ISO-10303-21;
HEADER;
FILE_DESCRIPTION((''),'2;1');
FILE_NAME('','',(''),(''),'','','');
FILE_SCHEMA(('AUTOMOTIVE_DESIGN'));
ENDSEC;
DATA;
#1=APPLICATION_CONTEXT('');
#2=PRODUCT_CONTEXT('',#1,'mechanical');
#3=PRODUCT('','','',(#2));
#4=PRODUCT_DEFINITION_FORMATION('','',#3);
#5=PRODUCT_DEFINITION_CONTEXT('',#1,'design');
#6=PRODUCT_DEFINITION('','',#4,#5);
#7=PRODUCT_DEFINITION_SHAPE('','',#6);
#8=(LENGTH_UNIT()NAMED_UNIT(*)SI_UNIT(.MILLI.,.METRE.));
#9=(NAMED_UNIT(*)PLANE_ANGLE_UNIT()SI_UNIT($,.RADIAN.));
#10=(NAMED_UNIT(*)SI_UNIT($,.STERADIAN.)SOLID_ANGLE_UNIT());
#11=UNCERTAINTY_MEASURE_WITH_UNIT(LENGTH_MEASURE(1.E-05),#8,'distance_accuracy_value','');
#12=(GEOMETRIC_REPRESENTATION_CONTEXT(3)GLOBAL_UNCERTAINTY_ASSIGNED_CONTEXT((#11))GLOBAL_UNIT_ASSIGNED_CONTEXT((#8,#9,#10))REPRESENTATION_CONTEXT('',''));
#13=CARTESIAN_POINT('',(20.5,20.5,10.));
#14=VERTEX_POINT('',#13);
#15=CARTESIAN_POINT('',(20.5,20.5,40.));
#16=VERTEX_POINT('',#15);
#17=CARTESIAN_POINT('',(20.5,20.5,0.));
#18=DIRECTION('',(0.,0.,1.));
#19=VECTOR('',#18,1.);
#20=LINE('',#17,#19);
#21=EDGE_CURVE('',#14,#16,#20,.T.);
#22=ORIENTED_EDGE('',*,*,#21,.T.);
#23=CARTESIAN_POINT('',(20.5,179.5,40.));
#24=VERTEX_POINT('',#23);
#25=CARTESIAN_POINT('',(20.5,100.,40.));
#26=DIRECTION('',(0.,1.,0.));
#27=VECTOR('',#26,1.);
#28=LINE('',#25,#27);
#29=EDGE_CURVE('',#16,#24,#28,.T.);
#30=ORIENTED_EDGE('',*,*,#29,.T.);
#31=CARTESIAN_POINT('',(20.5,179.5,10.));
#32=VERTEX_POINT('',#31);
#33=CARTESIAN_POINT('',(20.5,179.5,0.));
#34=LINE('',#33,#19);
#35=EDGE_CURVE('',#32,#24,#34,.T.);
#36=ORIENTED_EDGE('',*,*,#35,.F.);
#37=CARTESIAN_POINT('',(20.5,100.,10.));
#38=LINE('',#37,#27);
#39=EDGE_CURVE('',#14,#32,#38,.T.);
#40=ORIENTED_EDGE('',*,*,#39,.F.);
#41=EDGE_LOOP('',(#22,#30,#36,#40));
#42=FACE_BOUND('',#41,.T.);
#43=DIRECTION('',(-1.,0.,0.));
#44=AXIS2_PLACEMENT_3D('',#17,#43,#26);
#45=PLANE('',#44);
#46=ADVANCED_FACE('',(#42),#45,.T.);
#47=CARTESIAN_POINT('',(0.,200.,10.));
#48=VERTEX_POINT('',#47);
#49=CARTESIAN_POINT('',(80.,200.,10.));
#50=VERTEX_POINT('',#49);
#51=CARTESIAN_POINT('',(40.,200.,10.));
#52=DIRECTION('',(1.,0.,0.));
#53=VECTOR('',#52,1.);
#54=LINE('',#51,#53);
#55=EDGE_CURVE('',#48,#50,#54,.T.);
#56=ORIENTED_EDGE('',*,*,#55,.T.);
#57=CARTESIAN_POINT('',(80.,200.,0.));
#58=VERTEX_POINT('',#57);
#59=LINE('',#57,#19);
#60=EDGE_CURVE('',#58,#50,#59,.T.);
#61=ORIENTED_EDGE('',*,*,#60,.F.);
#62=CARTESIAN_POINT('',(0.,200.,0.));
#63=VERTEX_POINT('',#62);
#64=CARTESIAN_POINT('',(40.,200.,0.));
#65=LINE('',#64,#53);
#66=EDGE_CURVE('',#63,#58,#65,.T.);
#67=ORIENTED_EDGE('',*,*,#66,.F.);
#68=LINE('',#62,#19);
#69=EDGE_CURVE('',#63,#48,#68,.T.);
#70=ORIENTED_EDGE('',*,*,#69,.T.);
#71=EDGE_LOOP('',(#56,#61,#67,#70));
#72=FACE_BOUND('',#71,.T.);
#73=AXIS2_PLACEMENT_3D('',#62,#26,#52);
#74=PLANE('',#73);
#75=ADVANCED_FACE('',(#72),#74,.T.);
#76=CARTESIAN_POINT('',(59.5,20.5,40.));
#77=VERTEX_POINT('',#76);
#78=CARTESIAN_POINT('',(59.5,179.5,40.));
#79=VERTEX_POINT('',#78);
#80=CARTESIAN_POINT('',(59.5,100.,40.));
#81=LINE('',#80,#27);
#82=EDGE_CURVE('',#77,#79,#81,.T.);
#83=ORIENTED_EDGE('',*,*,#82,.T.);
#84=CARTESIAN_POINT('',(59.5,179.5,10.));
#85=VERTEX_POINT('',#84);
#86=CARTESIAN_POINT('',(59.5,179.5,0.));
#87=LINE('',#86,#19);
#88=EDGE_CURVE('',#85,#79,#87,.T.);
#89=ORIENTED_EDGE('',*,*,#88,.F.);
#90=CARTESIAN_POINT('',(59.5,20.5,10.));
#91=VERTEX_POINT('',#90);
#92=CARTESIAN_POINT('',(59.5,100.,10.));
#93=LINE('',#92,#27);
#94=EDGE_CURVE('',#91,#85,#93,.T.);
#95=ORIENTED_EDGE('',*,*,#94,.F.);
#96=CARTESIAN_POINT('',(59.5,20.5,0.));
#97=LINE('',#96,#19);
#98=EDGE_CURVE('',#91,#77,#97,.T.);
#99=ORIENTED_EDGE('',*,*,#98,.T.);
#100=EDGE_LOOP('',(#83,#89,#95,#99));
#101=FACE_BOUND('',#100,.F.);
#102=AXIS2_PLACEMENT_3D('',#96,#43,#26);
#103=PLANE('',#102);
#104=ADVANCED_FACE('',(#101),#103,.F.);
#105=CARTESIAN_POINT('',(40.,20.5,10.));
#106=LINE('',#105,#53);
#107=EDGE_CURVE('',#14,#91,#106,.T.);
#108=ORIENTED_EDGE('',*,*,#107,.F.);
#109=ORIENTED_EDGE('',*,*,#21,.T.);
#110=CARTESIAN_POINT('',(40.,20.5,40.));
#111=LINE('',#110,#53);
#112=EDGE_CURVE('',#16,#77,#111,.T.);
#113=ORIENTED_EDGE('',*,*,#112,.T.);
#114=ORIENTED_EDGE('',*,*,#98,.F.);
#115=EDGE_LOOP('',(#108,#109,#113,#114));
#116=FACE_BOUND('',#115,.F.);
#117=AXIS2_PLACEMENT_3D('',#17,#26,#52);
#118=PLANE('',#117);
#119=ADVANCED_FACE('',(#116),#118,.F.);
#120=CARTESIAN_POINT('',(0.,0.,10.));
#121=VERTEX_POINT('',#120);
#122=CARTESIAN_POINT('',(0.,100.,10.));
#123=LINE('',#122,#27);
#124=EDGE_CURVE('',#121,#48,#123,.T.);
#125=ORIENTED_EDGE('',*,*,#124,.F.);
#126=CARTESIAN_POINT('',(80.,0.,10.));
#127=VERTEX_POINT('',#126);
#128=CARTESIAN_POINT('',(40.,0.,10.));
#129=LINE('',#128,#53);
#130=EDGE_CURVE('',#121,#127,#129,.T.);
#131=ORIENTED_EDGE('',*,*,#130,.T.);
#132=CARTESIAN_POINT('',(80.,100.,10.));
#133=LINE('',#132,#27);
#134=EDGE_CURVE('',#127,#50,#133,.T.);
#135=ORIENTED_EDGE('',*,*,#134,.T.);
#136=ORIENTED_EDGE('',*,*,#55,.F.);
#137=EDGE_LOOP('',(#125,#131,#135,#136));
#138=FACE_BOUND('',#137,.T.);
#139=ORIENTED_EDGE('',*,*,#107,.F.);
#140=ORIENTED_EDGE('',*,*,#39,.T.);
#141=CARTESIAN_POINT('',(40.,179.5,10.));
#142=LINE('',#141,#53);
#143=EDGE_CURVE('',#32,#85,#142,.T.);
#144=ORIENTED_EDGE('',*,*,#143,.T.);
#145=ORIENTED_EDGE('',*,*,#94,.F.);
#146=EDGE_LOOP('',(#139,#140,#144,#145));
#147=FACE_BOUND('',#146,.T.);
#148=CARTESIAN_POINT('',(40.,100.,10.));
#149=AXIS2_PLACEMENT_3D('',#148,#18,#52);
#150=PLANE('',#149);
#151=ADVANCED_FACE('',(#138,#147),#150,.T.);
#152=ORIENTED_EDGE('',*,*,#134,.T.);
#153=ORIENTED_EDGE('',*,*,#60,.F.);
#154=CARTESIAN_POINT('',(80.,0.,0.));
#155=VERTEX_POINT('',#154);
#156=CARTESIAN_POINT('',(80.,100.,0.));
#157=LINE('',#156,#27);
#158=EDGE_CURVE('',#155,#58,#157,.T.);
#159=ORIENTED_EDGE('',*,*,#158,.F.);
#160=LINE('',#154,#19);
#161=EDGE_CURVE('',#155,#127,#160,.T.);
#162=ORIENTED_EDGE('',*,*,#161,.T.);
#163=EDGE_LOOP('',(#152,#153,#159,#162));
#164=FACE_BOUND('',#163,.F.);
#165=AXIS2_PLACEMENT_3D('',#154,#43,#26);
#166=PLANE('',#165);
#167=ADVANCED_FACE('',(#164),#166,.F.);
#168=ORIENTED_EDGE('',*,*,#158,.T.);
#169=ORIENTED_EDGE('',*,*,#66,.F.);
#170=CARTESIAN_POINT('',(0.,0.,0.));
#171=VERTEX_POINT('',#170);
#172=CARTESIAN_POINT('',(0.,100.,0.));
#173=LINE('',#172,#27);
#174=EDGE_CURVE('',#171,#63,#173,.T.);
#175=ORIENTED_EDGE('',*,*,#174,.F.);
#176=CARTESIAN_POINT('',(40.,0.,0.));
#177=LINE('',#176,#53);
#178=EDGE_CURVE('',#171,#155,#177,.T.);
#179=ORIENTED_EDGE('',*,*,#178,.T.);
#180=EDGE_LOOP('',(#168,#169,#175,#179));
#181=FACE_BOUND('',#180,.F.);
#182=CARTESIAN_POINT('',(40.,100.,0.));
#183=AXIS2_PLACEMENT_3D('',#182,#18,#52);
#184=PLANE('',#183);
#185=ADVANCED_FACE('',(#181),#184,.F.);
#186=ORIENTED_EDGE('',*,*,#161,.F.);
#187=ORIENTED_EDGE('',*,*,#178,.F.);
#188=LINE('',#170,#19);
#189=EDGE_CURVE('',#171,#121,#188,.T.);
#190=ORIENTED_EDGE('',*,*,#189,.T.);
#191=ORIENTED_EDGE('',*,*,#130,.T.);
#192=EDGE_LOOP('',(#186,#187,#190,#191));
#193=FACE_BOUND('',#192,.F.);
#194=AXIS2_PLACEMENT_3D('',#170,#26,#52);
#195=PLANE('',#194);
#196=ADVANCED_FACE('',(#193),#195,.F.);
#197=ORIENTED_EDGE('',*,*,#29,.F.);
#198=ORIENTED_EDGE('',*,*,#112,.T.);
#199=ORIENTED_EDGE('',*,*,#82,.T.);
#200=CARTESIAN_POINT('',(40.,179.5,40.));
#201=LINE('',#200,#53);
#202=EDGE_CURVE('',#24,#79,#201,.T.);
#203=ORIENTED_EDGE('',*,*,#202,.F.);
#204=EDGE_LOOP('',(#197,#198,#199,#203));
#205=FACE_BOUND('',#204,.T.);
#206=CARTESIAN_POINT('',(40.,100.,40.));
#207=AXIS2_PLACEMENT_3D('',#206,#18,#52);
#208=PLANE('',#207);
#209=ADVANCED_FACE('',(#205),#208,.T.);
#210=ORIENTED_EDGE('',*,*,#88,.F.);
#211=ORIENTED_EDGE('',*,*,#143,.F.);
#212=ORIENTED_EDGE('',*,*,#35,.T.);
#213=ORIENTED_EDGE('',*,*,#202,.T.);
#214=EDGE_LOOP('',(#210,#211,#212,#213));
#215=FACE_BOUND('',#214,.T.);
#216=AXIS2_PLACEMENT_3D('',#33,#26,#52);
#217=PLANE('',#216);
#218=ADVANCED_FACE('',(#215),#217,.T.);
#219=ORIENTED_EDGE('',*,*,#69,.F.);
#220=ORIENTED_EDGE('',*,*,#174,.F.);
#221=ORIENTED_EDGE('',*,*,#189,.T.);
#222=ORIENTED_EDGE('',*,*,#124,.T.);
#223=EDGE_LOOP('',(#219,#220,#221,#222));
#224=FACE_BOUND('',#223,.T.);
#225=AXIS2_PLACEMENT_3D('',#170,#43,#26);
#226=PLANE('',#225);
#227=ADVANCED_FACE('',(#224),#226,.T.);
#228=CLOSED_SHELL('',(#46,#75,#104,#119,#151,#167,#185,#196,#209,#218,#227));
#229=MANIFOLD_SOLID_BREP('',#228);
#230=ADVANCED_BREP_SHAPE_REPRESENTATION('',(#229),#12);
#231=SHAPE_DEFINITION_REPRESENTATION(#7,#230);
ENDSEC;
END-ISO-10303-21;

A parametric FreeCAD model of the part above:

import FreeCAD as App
import Part
import Sketcher

doc = App.newDocument("Part")
body = doc.addObject("PartDesign::Body", "Body")

# Sketch on XY plane
sketch1 = body.newObject("Sketcher::SketchObject", "Sketch")
sketch1.AttachmentSupport = (doc.getObject("XY_Plane"), [""])
sketch1.MapMode = "FlatFace"
sketch1.addGeometry(Part.LineSegment(App.Vector(0, 200, 0), App.Vector(0, 0, 0)), False)
sketch1.addGeometry(Part.LineSegment(App.Vector(0, 0, 0), App.Vector(80, 0, 0)), False)
sketch1.addGeometry(Part.LineSegment(App.Vector(80, 0, 0), App.Vector(80, 200, 0)), False)
sketch1.addGeometry(Part.LineSegment(App.Vector(80, 200, 0), App.Vector(0, 200, 0)), False)
sketch1.addGeometry(Part.LineSegment(App.Vector(59.5, 20.5, 0), App.Vector(20.5, 20.5, 0)), False)
sketch1.addGeometry(Part.LineSegment(App.Vector(20.5, 20.5, 0), App.Vector(20.5, 179.5, 0)), False)
sketch1.addGeometry(Part.LineSegment(App.Vector(20.5, 179.5, 0), App.Vector(59.5, 179.5, 0)), False)
sketch1.addGeometry(Part.LineSegment(App.Vector(59.5, 179.5, 0), App.Vector(59.5, 20.5, 0)), False)
sketch1.addConstraint(Sketcher.Constraint("Coincident", 0, 2, 1, 1))
sketch1.addConstraint(Sketcher.Constraint("Coincident", 1, 2, 2, 1))
sketch1.addConstraint(Sketcher.Constraint("Coincident", 2, 2, 3, 1))
sketch1.addConstraint(Sketcher.Constraint("Coincident", 3, 2, 0, 1))
sketch1.addConstraint(Sketcher.Constraint("Coincident", 4, 2, 5, 1))
sketch1.addConstraint(Sketcher.Constraint("Coincident", 5, 2, 6, 1))
sketch1.addConstraint(Sketcher.Constraint("Coincident", 6, 2, 7, 1))
sketch1.addConstraint(Sketcher.Constraint("Coincident", 7, 2, 4, 1))
sketch1.addConstraint(Sketcher.Constraint("Vertical", 0))
sketch1.addConstraint(Sketcher.Constraint("Horizontal", 1))
sketch1.addConstraint(Sketcher.Constraint("Vertical", 2))
sketch1.addConstraint(Sketcher.Constraint("Horizontal", 3))
sketch1.addConstraint(Sketcher.Constraint("Horizontal", 4))
sketch1.addConstraint(Sketcher.Constraint("Vertical", 5))
sketch1.addConstraint(Sketcher.Constraint("Horizontal", 6))
sketch1.addConstraint(Sketcher.Constraint("Vertical", 7))
sketch1.addConstraint(Sketcher.Constraint("Coincident", 0, 2, -1, 1))
sketch1.addConstraint(Sketcher.Constraint("DistanceX", 1, 1, 1, 2, 80.0))
sketch1.addConstraint(Sketcher.Constraint("DistanceX", 4, 2, 4, 1, 39.0))
sketch1.addConstraint(Sketcher.Constraint("DistanceY", 0, 2, 0, 1, 200.0))
sketch1.addConstraint(Sketcher.Constraint("DistanceY", 5, 1, 5, 2, 159.0))
sketch1.addConstraint(Sketcher.Constraint("DistanceX", -1, 1, 4, 2, 20.5))
sketch1.addConstraint(Sketcher.Constraint("DistanceY", -1, 1, 4, 2, 20.5))
pad1 = body.newObject("PartDesign::Pad", "Pad")
pad1.Profile = sketch1
pad1.Length = 10

# Sketch on XY plane
sketch2 = body.newObject("Sketcher::SketchObject", "Sketch001")
sketch2.AttachmentSupport = (doc.getObject("XY_Plane"), [""])
sketch2.MapMode = "FlatFace"
sketch2.addGeometry(Part.LineSegment(App.Vector(20.5, 179.5, 0), App.Vector(20.5, 20.5, 0)), False)
sketch2.addGeometry(Part.LineSegment(App.Vector(20.5, 20.5, 0), App.Vector(59.5, 20.5, 0)), False)
sketch2.addGeometry(Part.LineSegment(App.Vector(59.5, 20.5, 0), App.Vector(59.5, 179.5, 0)), False)
sketch2.addGeometry(Part.LineSegment(App.Vector(59.5, 179.5, 0), App.Vector(20.5, 179.5, 0)), False)
sketch2.addConstraint(Sketcher.Constraint("Coincident", 0, 2, 1, 1))
sketch2.addConstraint(Sketcher.Constraint("Coincident", 1, 2, 2, 1))
sketch2.addConstraint(Sketcher.Constraint("Coincident", 2, 2, 3, 1))
sketch2.addConstraint(Sketcher.Constraint("Coincident", 3, 2, 0, 1))
sketch2.addConstraint(Sketcher.Constraint("Vertical", 0))
sketch2.addConstraint(Sketcher.Constraint("Horizontal", 1))
sketch2.addConstraint(Sketcher.Constraint("Vertical", 2))
sketch2.addConstraint(Sketcher.Constraint("Horizontal", 3))
sketch2.addConstraint(Sketcher.Constraint("DistanceX", 1, 1, 1, 2, 39.0))
sketch2.addConstraint(Sketcher.Constraint("DistanceY", 0, 2, 0, 1, 159.0))
sketch2.addConstraint(Sketcher.Constraint("DistanceX", -1, 1, 0, 2, 20.5))
sketch2.addConstraint(Sketcher.Constraint("DistanceY", -1, 1, 0, 2, 20.5))
pad2 = body.newObject("PartDesign::Pad", "Pad001")
pad2.Profile = sketch2
pad2.Length = 40

doc.recompute()
